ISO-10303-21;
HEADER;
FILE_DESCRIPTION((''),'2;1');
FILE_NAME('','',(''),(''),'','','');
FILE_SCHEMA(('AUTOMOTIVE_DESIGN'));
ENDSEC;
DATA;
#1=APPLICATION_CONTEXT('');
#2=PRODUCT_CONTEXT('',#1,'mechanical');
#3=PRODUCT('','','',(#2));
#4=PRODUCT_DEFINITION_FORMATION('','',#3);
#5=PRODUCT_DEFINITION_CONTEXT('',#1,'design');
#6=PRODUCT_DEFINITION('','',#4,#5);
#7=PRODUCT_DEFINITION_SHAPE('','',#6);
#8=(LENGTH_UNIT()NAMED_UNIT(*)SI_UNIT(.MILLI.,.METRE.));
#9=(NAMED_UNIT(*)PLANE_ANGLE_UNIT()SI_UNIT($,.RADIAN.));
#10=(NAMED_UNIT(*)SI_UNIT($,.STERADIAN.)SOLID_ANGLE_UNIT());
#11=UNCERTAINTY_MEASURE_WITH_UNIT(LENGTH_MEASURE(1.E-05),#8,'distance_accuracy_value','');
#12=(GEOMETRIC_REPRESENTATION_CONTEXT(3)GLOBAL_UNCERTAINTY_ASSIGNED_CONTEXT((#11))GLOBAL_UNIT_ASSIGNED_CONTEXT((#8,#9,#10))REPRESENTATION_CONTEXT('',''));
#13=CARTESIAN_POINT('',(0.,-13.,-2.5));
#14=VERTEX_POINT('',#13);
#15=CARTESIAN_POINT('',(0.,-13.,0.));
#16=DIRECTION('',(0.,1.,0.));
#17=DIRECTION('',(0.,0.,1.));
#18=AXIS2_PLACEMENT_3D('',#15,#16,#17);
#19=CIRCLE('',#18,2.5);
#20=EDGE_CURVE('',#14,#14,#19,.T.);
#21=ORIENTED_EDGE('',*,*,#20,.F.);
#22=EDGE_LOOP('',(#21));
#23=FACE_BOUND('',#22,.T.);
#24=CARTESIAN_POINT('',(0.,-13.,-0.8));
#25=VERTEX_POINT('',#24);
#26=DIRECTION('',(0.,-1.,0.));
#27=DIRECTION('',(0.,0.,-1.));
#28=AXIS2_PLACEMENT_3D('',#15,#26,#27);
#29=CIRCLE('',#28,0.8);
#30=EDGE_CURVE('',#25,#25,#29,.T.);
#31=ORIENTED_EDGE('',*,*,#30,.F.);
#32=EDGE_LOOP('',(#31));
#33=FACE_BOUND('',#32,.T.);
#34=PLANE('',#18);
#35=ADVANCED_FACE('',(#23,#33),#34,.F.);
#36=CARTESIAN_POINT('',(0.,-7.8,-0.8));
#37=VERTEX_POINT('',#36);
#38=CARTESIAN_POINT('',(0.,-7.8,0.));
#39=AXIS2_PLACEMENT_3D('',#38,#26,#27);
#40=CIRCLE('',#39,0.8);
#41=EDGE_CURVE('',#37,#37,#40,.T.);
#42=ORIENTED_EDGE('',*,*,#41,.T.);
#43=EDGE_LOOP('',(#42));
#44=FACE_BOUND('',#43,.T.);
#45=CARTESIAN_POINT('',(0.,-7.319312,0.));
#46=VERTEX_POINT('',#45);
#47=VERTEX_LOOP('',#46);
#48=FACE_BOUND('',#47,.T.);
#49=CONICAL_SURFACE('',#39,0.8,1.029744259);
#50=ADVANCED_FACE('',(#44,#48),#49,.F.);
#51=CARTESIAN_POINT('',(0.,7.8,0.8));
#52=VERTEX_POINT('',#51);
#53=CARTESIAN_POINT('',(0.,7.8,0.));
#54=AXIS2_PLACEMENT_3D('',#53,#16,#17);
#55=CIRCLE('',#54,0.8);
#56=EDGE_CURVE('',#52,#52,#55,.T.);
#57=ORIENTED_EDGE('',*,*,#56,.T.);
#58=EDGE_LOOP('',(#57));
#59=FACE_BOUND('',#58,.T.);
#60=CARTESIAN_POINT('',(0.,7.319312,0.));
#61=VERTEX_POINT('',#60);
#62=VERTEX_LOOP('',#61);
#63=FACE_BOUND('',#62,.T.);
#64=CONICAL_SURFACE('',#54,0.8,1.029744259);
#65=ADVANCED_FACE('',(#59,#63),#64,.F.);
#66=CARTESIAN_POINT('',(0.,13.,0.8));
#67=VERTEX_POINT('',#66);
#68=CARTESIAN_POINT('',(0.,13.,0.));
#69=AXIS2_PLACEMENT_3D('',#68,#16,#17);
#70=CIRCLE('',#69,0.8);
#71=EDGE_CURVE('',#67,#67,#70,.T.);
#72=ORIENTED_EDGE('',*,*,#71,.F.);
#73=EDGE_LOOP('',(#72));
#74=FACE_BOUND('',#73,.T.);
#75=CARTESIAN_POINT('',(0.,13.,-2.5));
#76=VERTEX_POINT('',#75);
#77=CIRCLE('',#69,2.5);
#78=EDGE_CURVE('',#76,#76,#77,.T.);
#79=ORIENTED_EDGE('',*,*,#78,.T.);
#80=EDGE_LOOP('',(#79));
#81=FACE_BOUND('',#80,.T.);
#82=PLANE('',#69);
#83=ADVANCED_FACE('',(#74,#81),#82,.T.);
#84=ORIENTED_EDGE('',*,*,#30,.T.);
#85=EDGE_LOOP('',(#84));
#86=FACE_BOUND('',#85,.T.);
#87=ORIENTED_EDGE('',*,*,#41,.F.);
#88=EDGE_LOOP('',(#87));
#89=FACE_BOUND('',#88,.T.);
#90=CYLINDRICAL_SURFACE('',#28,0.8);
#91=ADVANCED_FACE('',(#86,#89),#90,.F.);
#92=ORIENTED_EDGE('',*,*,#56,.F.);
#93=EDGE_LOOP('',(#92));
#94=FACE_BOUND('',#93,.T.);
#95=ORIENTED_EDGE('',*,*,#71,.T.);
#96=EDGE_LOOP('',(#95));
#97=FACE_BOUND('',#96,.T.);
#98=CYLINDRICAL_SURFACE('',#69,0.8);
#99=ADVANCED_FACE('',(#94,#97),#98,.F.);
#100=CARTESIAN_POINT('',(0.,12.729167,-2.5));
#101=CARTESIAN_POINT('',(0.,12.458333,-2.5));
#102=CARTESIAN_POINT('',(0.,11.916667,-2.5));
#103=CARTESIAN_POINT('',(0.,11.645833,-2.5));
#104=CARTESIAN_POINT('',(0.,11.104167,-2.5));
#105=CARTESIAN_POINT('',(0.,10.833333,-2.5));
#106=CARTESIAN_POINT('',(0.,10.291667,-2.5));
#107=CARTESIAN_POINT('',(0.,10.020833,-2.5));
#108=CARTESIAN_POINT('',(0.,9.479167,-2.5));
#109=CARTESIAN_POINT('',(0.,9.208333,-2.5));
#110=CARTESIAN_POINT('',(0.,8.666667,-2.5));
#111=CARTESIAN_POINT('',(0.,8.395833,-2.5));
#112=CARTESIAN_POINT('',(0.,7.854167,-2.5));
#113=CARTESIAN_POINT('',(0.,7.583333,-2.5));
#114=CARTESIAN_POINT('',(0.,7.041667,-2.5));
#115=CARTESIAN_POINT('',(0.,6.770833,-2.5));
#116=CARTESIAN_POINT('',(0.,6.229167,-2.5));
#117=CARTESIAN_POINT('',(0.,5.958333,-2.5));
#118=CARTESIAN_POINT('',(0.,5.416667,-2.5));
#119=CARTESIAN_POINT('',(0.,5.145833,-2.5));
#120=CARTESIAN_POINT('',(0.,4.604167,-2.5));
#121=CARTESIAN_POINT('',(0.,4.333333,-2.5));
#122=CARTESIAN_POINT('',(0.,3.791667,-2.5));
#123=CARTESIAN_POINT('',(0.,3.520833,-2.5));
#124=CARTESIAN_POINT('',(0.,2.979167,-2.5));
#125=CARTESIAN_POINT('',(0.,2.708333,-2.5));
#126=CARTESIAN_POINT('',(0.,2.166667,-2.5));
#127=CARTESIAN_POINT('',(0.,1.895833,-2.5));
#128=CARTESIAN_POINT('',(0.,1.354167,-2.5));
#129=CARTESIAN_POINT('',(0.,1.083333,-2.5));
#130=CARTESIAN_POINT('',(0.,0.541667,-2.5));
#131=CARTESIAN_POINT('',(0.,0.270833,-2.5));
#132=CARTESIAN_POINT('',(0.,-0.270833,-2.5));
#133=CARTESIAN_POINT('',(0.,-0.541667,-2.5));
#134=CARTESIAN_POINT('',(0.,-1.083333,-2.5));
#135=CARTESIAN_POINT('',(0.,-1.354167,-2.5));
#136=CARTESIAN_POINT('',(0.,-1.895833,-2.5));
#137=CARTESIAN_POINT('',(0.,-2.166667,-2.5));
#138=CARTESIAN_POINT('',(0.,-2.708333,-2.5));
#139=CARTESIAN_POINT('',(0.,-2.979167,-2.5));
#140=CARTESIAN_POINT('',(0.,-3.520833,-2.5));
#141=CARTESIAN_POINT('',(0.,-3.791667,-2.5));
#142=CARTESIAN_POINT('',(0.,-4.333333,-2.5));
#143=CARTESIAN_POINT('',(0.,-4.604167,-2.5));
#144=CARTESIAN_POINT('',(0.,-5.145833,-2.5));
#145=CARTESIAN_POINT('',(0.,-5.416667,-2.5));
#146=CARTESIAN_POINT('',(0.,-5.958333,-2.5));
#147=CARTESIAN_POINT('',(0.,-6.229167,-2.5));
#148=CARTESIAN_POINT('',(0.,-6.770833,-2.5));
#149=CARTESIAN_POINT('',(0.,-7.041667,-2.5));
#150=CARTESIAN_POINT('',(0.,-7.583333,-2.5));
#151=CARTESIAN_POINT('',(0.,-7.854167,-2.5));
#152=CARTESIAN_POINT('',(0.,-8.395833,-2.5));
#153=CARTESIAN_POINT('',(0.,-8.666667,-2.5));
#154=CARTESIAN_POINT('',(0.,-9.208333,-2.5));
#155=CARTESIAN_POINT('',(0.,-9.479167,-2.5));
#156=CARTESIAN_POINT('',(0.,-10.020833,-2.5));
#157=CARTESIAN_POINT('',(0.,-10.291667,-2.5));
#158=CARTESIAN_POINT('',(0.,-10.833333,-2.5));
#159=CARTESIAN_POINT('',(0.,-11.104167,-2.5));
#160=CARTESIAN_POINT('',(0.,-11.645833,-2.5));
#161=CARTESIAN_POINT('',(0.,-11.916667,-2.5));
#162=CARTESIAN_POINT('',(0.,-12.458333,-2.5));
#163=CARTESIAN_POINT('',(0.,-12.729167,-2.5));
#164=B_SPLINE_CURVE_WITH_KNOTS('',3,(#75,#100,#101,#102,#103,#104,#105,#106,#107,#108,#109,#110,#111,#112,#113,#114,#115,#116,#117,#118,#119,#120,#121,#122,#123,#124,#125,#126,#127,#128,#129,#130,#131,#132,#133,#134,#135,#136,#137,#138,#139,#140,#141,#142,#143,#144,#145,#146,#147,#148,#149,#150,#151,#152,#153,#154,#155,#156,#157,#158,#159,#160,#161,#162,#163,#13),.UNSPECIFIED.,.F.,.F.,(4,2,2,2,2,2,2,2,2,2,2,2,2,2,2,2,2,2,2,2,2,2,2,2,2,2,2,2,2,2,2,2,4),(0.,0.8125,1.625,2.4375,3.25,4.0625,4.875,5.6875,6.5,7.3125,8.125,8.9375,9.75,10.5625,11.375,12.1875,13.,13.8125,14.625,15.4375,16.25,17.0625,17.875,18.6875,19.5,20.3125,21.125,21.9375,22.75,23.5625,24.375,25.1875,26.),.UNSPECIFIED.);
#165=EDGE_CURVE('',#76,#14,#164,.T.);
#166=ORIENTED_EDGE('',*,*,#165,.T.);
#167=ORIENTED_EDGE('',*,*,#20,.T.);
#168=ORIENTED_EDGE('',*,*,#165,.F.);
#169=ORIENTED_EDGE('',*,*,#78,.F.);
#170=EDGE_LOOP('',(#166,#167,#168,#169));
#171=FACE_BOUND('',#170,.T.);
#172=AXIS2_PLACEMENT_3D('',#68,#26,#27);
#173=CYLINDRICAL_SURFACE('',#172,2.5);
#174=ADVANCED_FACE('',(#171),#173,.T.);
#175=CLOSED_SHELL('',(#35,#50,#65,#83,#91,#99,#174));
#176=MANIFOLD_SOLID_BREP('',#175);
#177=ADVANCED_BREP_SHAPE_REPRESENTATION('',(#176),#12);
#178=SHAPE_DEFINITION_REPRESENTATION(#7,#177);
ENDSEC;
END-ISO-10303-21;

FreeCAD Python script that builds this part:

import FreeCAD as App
import Part
import Sketcher
Q = App.Units.Quantity

doc = App.newDocument("Part")
body = doc.addObject("PartDesign::Body", "Body")

# Sketch on XZ plane
sketch1 = doc.addObject("Sketcher::SketchObject", "Sketch")
body.addObject(sketch1)
sketch1.AttachmentSupport = (doc.XZ_Plane, [""])
sketch1.MapMode = "FlatFace"
sketch1.addGeometry(Part.Circle(App.Vector(0, 0, 0), App.Vector(0, 0, 1), 2.5), False)
sketch1.addConstraint([
    Sketcher.Constraint("Coincident", 0, 3, -1, 1),
    Sketcher.Constraint("Diameter", 0, Q("5 mm")),
])
pad1 = doc.addObject("PartDesign::Pad", "Pad")
body.addObject(pad1)
pad1.Profile = sketch1
pad1.Length = 26
pad1.Midplane = True

# Sketch on XZ plane
sketch2 = doc.addObject("Sketcher::SketchObject", "Sketch001")
body.addObject(sketch2)
sketch2.AttachmentSupport = (doc.XZ_Plane, [""])
sketch2.MapMode = "FlatFace"
sketch2.AttachmentOffset = App.Placement(App.Vector(0, 0, -13), App.Rotation())
sketch2.addGeometry(Part.Circle(App.Vector(0, 0, 0), App.Vector(0, 0, 1), 0.8), False)
sketch2.addConstraint([
    Sketcher.Constraint("Coincident", 0, 3, -1, 1),
    Sketcher.Constraint("Diameter", 0, Q("1.6 mm")),
])
doc.recompute()
hole = doc.addObject("PartDesign::Hole", "Hole")
body.addObject(hole)
hole.Profile = sketch2
hole.ThreadType = "None"
hole.Diameter = 1.6
hole.DepthType = "Dimension"
hole.Depth = 5.2
hole.DrillPoint = "Angled"
hole.DrillPointAngle = 118
hole.Reversed = True

# Sketch on XZ plane
sketch3 = doc.addObject("Sketcher::SketchObject", "Sketch002")
body.addObject(sketch3)
sketch3.AttachmentSupport = (doc.XZ_Plane, [""])
sketch3.MapMode = "FlatFace"
sketch3.AttachmentOffset = App.Placement(App.Vector(0, 0, 13), App.Rotation())
sketch3.addGeometry(Part.Circle(App.Vector(0, 0, 0), App.Vector(0, 0, 1), 0.8), False)
sketch3.addConstraint([
    Sketcher.Constraint("Coincident", 0, 3, -1, 1),
    Sketcher.Constraint("Diameter", 0, Q("1.6 mm")),
])
doc.recompute()
hole2 = doc.addObject("PartDesign::Hole", "Hole001")
body.addObject(hole2)
hole2.Profile = sketch3
hole2.ThreadType = "None"
hole2.Diameter = 1.6
hole2.DepthType = "Dimension"
hole2.Depth = 5.2
hole2.DrillPoint = "Angled"
hole2.DrillPointAngle = 118

doc.recompute()
